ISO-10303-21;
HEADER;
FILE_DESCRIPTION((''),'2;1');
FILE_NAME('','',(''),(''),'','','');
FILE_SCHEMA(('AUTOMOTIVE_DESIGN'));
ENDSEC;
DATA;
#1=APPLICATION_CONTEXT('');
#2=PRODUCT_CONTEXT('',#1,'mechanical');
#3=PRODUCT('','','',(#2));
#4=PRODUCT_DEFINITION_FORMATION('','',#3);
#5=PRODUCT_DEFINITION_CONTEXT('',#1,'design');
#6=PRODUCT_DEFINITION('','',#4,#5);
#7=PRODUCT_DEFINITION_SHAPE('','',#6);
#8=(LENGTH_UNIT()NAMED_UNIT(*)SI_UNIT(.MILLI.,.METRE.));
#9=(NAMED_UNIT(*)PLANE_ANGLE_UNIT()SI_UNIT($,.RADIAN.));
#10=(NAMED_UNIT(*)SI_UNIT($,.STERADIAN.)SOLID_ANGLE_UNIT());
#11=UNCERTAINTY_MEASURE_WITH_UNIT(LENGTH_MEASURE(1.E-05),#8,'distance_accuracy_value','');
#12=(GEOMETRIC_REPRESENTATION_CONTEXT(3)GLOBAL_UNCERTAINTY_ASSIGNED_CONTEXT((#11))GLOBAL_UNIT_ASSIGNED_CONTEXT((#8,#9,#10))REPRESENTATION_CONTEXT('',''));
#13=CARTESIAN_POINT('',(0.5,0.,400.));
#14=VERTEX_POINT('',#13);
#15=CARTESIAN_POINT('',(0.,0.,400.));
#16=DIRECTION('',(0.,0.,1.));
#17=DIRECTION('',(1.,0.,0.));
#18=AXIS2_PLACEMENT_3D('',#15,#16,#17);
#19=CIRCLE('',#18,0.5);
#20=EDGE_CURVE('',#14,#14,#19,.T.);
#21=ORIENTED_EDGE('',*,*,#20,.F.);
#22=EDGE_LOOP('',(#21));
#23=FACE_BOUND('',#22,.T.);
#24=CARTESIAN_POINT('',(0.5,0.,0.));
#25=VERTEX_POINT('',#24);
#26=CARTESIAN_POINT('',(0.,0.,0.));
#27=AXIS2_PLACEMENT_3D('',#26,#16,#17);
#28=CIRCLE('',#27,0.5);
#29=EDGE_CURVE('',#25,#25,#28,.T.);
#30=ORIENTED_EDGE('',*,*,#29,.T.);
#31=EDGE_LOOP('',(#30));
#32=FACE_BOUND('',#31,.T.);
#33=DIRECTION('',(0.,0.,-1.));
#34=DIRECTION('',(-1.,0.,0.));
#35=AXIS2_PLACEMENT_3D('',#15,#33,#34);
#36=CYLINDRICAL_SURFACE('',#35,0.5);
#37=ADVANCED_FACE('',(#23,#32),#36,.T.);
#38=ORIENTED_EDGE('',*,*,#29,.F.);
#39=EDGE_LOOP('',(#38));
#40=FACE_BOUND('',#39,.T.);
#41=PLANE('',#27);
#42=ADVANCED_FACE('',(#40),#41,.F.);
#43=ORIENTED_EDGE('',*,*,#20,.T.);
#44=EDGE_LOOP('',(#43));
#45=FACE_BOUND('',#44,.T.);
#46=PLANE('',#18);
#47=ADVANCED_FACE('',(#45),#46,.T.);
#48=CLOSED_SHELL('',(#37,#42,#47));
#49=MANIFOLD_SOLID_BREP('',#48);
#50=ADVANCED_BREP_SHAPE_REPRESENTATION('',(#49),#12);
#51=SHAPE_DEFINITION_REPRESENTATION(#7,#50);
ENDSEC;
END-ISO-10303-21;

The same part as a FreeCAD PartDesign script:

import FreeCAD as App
import Part
import Sketcher

doc = App.newDocument("Part")
params = doc.addObject("Spreadsheet::Sheet", "Params")
for row, (alias, value) in enumerate([
    ("sketch1_diameter", "1 mm"),
    ("pad1_length", "400 mm"),
], start=1):
    params.set(f"A{row}", alias)
    params.set(f"B{row}", "=" + value)
    params.setAlias(f"B{row}", alias)

body = doc.addObject("PartDesign::Body", "Body")

sketch1 = doc.addObject("Sketcher::SketchObject", "Sketch")
body.addObject(sketch1)
sketch1.AttachmentSupport = (doc.XY_Plane, [""])
sketch1.MapMode = "FlatFace"
sketch1.addGeometry(Part.Circle(App.Vector(0, 0, 0), App.Vector(0, 0, 1), 0.5), False)
sketch1.addConstraint([
    Sketcher.Constraint("Coincident", 0, 3, -1, 1),
    Sketcher.Constraint("Diameter", 0, 1.0),
])
sketch1.setExpression("Constraints[1]", "Params.sketch1_diameter")
pad1 = doc.addObject("PartDesign::Pad", "Pad")
body.addObject(pad1)
pad1.Profile = sketch1
pad1.setExpression("Length", "Params.pad1_length")

doc.recompute()
